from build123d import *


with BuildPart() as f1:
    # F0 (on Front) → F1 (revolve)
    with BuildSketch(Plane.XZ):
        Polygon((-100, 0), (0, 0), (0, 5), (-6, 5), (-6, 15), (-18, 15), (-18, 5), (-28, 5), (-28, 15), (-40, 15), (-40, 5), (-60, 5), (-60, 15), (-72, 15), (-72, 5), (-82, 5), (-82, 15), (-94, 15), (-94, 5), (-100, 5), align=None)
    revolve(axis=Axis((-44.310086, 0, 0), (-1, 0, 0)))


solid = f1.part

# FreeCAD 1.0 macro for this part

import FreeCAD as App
import Part
import Sketcher

doc = App.newDocument("Part")
body = doc.addObject("PartDesign::Body", "Body")

# Sketch on XZ plane
sketch1 = body.newObject("Sketcher::SketchObject", "Sketch")
sketch1.AttachmentSupport = (doc.getObject("XZ_Plane"), [""])
sketch1.MapMode = "FlatFace"
sketch1.addGeometry([
    Part.LineSegment(App.Vector(-100, 0, 0), App.Vector(0, 0, 0)),  # 0
    Part.LineSegment(App.Vector(0, 0, 0), App.Vector(0, 5, 0)),  # 1
    Part.LineSegment(App.Vector(0, 5, 0), App.Vector(-6, 5, 0)),  # 2
    Part.LineSegment(App.Vector(-6, 5, 0), App.Vector(-6, 15, 0)),  # 3
    Part.LineSegment(App.Vector(-6, 15, 0), App.Vector(-18, 15, 0)),  # 4
    Part.LineSegment(App.Vector(-18, 15, 0), App.Vector(-18, 5, 0)),  # 5
    Part.LineSegment(App.Vector(-18, 5, 0), App.Vector(-28, 5, 0)),  # 6
    Part.LineSegment(App.Vector(-28, 5, 0), App.Vector(-28, 15, 0)),  # 7
    Part.LineSegment(App.Vector(-28, 15, 0), App.Vector(-40, 15, 0)),  # 8
    Part.LineSegment(App.Vector(-40, 15, 0), App.Vector(-40, 5, 0)),  # 9
    Part.LineSegment(App.Vector(-40, 5, 0), App.Vector(-60, 5, 0)),  # 10
    Part.LineSegment(App.Vector(-60, 5, 0), App.Vector(-60, 15, 0)),  # 11
    Part.LineSegment(App.Vector(-60, 15, 0), App.Vector(-72, 15, 0)),  # 12
    Part.LineSegment(App.Vector(-72, 15, 0), App.Vector(-72, 5, 0)),  # 13
    Part.LineSegment(App.Vector(-72, 5, 0), App.Vector(-82, 5, 0)),  # 14
    Part.LineSegment(App.Vector(-82, 5, 0), App.Vector(-82, 15, 0)),  # 15
    Part.LineSegment(App.Vector(-82, 15, 0), App.Vector(-94, 15, 0)),  # 16
    Part.LineSegment(App.Vector(-94, 15, 0), App.Vector(-94, 5, 0)),  # 17
    Part.LineSegment(App.Vector(-94, 5, 0), App.Vector(-100, 5, 0)),  # 18
    Part.LineSegment(App.Vector(-100, 5, 0), App.Vector(-100, 0, 0)),  # 19
], False)
sketch1.addConstraint([
    Sketcher.Constraint("Coincident", 0, 2, 1, 1),
    Sketcher.Constraint("Coincident", 1, 2, 2, 1),
    Sketcher.Constraint("Coincident", 2, 2, 3, 1),
    Sketcher.Constraint("Coincident", 3, 2, 4, 1),
    Sketcher.Constraint("Coincident", 4, 2, 5, 1),
    Sketcher.Constraint("Coincident", 5, 2, 6, 1),
    Sketcher.Constraint("Coincident", 6, 2, 7, 1),
    Sketcher.Constraint("Coincident", 7, 2, 8, 1),
    Sketcher.Constraint("Coincident", 8, 2, 9, 1),
    Sketcher.Constraint("Coincident", 9, 2, 10, 1),
    Sketcher.Constraint("Coincident", 10, 2, 11, 1),
    Sketcher.Constraint("Coincident", 11, 2, 12, 1),
    Sketcher.Constraint("Coincident", 12, 2, 13, 1),
    Sketcher.Constraint("Coincident", 13, 2, 14, 1),
    Sketcher.Constraint("Coincident", 14, 2, 15, 1),
    Sketcher.Constraint("Coincident", 15, 2, 16, 1),
    Sketcher.Constraint("Coincident", 16, 2, 17, 1),
    Sketcher.Constraint("Coincident", 17, 2, 18, 1),
    Sketcher.Constraint("Coincident", 18, 2, 19, 1),
    Sketcher.Constraint("Coincident", 19, 2, 0, 1),
    Sketcher.Constraint("Horizontal", 0),
    Sketcher.Constraint("Vertical", 1),
    Sketcher.Constraint("Horizontal", 2),
    Sketcher.Constraint("Vertical", 3),
    Sketcher.Constraint("Horizontal", 4),
    Sketcher.Constraint("Vertical", 5),
    Sketcher.Constraint("Horizontal", 6),
    Sketcher.Constraint("Vertical", 7),
    Sketcher.Constraint("Horizontal", 8),
    Sketcher.Constraint("Vertical", 9),
    Sketcher.Constraint("Horizontal", 10),
    Sketcher.Constraint("Vertical", 11),
    Sketcher.Constraint("Horizontal", 12),
    Sketcher.Constraint("Vertical", 13),
    Sketcher.Constraint("Horizontal", 14),
    Sketcher.Constraint("Vertical", 15),
    Sketcher.Constraint("Horizontal", 16),
    Sketcher.Constraint("Vertical", 17),
    Sketcher.Constraint("Horizontal", 18),
    Sketcher.Constraint("Vertical", 19),
    Sketcher.Constraint("Coincident", 0, 2, -1, 1),
    Sketcher.Constraint("Horizontal", 2, 2, 5, 2),
    Sketcher.Constraint("Horizontal", 4, 2, 7, 2),
    Sketcher.Constraint("Horizontal", 6, 2, 9, 2),
    Sketcher.Constraint("Horizontal", 8, 2, 11, 2),
    Sketcher.Constraint("Horizontal", 10, 2, 13, 2),
    Sketcher.Constraint("Horizontal", 12, 2, 15, 2),
    Sketcher.Constraint("Horizontal", 14, 2, 17, 2),
    Sketcher.Constraint("Equal", 4, 8),
    Sketcher.Constraint("Equal", 8, 12),
    Sketcher.Constraint("Equal", 6, 14),
    Sketcher.Constraint("Equal", 12, 16),
    Sketcher.Constraint("Equal", 2, 18),
    Sketcher.Constraint("Equal", 14, 3),
    Sketcher.Constraint("DistanceX", 0, 1, 0, 2, 100.0),
    Sketcher.Constraint("DistanceX", 2, 2, 2, 1, 6.0),
    Sketcher.Constraint("DistanceX", 4, 2, 4, 1, 12.0),
    Sketcher.Constraint("DistanceX", 6, 2, 6, 1, 10.0),
    Sketcher.Constraint("DistanceY", 1, 1, 1, 2, 5.0),
])
revolution = body.newObject("PartDesign::Revolution", "Revolution")
revolution.Profile = sketch1
revolution.ReferenceAxis = (sketch1, ["H_Axis"])
revolution.Angle = 360

doc.recompute()
